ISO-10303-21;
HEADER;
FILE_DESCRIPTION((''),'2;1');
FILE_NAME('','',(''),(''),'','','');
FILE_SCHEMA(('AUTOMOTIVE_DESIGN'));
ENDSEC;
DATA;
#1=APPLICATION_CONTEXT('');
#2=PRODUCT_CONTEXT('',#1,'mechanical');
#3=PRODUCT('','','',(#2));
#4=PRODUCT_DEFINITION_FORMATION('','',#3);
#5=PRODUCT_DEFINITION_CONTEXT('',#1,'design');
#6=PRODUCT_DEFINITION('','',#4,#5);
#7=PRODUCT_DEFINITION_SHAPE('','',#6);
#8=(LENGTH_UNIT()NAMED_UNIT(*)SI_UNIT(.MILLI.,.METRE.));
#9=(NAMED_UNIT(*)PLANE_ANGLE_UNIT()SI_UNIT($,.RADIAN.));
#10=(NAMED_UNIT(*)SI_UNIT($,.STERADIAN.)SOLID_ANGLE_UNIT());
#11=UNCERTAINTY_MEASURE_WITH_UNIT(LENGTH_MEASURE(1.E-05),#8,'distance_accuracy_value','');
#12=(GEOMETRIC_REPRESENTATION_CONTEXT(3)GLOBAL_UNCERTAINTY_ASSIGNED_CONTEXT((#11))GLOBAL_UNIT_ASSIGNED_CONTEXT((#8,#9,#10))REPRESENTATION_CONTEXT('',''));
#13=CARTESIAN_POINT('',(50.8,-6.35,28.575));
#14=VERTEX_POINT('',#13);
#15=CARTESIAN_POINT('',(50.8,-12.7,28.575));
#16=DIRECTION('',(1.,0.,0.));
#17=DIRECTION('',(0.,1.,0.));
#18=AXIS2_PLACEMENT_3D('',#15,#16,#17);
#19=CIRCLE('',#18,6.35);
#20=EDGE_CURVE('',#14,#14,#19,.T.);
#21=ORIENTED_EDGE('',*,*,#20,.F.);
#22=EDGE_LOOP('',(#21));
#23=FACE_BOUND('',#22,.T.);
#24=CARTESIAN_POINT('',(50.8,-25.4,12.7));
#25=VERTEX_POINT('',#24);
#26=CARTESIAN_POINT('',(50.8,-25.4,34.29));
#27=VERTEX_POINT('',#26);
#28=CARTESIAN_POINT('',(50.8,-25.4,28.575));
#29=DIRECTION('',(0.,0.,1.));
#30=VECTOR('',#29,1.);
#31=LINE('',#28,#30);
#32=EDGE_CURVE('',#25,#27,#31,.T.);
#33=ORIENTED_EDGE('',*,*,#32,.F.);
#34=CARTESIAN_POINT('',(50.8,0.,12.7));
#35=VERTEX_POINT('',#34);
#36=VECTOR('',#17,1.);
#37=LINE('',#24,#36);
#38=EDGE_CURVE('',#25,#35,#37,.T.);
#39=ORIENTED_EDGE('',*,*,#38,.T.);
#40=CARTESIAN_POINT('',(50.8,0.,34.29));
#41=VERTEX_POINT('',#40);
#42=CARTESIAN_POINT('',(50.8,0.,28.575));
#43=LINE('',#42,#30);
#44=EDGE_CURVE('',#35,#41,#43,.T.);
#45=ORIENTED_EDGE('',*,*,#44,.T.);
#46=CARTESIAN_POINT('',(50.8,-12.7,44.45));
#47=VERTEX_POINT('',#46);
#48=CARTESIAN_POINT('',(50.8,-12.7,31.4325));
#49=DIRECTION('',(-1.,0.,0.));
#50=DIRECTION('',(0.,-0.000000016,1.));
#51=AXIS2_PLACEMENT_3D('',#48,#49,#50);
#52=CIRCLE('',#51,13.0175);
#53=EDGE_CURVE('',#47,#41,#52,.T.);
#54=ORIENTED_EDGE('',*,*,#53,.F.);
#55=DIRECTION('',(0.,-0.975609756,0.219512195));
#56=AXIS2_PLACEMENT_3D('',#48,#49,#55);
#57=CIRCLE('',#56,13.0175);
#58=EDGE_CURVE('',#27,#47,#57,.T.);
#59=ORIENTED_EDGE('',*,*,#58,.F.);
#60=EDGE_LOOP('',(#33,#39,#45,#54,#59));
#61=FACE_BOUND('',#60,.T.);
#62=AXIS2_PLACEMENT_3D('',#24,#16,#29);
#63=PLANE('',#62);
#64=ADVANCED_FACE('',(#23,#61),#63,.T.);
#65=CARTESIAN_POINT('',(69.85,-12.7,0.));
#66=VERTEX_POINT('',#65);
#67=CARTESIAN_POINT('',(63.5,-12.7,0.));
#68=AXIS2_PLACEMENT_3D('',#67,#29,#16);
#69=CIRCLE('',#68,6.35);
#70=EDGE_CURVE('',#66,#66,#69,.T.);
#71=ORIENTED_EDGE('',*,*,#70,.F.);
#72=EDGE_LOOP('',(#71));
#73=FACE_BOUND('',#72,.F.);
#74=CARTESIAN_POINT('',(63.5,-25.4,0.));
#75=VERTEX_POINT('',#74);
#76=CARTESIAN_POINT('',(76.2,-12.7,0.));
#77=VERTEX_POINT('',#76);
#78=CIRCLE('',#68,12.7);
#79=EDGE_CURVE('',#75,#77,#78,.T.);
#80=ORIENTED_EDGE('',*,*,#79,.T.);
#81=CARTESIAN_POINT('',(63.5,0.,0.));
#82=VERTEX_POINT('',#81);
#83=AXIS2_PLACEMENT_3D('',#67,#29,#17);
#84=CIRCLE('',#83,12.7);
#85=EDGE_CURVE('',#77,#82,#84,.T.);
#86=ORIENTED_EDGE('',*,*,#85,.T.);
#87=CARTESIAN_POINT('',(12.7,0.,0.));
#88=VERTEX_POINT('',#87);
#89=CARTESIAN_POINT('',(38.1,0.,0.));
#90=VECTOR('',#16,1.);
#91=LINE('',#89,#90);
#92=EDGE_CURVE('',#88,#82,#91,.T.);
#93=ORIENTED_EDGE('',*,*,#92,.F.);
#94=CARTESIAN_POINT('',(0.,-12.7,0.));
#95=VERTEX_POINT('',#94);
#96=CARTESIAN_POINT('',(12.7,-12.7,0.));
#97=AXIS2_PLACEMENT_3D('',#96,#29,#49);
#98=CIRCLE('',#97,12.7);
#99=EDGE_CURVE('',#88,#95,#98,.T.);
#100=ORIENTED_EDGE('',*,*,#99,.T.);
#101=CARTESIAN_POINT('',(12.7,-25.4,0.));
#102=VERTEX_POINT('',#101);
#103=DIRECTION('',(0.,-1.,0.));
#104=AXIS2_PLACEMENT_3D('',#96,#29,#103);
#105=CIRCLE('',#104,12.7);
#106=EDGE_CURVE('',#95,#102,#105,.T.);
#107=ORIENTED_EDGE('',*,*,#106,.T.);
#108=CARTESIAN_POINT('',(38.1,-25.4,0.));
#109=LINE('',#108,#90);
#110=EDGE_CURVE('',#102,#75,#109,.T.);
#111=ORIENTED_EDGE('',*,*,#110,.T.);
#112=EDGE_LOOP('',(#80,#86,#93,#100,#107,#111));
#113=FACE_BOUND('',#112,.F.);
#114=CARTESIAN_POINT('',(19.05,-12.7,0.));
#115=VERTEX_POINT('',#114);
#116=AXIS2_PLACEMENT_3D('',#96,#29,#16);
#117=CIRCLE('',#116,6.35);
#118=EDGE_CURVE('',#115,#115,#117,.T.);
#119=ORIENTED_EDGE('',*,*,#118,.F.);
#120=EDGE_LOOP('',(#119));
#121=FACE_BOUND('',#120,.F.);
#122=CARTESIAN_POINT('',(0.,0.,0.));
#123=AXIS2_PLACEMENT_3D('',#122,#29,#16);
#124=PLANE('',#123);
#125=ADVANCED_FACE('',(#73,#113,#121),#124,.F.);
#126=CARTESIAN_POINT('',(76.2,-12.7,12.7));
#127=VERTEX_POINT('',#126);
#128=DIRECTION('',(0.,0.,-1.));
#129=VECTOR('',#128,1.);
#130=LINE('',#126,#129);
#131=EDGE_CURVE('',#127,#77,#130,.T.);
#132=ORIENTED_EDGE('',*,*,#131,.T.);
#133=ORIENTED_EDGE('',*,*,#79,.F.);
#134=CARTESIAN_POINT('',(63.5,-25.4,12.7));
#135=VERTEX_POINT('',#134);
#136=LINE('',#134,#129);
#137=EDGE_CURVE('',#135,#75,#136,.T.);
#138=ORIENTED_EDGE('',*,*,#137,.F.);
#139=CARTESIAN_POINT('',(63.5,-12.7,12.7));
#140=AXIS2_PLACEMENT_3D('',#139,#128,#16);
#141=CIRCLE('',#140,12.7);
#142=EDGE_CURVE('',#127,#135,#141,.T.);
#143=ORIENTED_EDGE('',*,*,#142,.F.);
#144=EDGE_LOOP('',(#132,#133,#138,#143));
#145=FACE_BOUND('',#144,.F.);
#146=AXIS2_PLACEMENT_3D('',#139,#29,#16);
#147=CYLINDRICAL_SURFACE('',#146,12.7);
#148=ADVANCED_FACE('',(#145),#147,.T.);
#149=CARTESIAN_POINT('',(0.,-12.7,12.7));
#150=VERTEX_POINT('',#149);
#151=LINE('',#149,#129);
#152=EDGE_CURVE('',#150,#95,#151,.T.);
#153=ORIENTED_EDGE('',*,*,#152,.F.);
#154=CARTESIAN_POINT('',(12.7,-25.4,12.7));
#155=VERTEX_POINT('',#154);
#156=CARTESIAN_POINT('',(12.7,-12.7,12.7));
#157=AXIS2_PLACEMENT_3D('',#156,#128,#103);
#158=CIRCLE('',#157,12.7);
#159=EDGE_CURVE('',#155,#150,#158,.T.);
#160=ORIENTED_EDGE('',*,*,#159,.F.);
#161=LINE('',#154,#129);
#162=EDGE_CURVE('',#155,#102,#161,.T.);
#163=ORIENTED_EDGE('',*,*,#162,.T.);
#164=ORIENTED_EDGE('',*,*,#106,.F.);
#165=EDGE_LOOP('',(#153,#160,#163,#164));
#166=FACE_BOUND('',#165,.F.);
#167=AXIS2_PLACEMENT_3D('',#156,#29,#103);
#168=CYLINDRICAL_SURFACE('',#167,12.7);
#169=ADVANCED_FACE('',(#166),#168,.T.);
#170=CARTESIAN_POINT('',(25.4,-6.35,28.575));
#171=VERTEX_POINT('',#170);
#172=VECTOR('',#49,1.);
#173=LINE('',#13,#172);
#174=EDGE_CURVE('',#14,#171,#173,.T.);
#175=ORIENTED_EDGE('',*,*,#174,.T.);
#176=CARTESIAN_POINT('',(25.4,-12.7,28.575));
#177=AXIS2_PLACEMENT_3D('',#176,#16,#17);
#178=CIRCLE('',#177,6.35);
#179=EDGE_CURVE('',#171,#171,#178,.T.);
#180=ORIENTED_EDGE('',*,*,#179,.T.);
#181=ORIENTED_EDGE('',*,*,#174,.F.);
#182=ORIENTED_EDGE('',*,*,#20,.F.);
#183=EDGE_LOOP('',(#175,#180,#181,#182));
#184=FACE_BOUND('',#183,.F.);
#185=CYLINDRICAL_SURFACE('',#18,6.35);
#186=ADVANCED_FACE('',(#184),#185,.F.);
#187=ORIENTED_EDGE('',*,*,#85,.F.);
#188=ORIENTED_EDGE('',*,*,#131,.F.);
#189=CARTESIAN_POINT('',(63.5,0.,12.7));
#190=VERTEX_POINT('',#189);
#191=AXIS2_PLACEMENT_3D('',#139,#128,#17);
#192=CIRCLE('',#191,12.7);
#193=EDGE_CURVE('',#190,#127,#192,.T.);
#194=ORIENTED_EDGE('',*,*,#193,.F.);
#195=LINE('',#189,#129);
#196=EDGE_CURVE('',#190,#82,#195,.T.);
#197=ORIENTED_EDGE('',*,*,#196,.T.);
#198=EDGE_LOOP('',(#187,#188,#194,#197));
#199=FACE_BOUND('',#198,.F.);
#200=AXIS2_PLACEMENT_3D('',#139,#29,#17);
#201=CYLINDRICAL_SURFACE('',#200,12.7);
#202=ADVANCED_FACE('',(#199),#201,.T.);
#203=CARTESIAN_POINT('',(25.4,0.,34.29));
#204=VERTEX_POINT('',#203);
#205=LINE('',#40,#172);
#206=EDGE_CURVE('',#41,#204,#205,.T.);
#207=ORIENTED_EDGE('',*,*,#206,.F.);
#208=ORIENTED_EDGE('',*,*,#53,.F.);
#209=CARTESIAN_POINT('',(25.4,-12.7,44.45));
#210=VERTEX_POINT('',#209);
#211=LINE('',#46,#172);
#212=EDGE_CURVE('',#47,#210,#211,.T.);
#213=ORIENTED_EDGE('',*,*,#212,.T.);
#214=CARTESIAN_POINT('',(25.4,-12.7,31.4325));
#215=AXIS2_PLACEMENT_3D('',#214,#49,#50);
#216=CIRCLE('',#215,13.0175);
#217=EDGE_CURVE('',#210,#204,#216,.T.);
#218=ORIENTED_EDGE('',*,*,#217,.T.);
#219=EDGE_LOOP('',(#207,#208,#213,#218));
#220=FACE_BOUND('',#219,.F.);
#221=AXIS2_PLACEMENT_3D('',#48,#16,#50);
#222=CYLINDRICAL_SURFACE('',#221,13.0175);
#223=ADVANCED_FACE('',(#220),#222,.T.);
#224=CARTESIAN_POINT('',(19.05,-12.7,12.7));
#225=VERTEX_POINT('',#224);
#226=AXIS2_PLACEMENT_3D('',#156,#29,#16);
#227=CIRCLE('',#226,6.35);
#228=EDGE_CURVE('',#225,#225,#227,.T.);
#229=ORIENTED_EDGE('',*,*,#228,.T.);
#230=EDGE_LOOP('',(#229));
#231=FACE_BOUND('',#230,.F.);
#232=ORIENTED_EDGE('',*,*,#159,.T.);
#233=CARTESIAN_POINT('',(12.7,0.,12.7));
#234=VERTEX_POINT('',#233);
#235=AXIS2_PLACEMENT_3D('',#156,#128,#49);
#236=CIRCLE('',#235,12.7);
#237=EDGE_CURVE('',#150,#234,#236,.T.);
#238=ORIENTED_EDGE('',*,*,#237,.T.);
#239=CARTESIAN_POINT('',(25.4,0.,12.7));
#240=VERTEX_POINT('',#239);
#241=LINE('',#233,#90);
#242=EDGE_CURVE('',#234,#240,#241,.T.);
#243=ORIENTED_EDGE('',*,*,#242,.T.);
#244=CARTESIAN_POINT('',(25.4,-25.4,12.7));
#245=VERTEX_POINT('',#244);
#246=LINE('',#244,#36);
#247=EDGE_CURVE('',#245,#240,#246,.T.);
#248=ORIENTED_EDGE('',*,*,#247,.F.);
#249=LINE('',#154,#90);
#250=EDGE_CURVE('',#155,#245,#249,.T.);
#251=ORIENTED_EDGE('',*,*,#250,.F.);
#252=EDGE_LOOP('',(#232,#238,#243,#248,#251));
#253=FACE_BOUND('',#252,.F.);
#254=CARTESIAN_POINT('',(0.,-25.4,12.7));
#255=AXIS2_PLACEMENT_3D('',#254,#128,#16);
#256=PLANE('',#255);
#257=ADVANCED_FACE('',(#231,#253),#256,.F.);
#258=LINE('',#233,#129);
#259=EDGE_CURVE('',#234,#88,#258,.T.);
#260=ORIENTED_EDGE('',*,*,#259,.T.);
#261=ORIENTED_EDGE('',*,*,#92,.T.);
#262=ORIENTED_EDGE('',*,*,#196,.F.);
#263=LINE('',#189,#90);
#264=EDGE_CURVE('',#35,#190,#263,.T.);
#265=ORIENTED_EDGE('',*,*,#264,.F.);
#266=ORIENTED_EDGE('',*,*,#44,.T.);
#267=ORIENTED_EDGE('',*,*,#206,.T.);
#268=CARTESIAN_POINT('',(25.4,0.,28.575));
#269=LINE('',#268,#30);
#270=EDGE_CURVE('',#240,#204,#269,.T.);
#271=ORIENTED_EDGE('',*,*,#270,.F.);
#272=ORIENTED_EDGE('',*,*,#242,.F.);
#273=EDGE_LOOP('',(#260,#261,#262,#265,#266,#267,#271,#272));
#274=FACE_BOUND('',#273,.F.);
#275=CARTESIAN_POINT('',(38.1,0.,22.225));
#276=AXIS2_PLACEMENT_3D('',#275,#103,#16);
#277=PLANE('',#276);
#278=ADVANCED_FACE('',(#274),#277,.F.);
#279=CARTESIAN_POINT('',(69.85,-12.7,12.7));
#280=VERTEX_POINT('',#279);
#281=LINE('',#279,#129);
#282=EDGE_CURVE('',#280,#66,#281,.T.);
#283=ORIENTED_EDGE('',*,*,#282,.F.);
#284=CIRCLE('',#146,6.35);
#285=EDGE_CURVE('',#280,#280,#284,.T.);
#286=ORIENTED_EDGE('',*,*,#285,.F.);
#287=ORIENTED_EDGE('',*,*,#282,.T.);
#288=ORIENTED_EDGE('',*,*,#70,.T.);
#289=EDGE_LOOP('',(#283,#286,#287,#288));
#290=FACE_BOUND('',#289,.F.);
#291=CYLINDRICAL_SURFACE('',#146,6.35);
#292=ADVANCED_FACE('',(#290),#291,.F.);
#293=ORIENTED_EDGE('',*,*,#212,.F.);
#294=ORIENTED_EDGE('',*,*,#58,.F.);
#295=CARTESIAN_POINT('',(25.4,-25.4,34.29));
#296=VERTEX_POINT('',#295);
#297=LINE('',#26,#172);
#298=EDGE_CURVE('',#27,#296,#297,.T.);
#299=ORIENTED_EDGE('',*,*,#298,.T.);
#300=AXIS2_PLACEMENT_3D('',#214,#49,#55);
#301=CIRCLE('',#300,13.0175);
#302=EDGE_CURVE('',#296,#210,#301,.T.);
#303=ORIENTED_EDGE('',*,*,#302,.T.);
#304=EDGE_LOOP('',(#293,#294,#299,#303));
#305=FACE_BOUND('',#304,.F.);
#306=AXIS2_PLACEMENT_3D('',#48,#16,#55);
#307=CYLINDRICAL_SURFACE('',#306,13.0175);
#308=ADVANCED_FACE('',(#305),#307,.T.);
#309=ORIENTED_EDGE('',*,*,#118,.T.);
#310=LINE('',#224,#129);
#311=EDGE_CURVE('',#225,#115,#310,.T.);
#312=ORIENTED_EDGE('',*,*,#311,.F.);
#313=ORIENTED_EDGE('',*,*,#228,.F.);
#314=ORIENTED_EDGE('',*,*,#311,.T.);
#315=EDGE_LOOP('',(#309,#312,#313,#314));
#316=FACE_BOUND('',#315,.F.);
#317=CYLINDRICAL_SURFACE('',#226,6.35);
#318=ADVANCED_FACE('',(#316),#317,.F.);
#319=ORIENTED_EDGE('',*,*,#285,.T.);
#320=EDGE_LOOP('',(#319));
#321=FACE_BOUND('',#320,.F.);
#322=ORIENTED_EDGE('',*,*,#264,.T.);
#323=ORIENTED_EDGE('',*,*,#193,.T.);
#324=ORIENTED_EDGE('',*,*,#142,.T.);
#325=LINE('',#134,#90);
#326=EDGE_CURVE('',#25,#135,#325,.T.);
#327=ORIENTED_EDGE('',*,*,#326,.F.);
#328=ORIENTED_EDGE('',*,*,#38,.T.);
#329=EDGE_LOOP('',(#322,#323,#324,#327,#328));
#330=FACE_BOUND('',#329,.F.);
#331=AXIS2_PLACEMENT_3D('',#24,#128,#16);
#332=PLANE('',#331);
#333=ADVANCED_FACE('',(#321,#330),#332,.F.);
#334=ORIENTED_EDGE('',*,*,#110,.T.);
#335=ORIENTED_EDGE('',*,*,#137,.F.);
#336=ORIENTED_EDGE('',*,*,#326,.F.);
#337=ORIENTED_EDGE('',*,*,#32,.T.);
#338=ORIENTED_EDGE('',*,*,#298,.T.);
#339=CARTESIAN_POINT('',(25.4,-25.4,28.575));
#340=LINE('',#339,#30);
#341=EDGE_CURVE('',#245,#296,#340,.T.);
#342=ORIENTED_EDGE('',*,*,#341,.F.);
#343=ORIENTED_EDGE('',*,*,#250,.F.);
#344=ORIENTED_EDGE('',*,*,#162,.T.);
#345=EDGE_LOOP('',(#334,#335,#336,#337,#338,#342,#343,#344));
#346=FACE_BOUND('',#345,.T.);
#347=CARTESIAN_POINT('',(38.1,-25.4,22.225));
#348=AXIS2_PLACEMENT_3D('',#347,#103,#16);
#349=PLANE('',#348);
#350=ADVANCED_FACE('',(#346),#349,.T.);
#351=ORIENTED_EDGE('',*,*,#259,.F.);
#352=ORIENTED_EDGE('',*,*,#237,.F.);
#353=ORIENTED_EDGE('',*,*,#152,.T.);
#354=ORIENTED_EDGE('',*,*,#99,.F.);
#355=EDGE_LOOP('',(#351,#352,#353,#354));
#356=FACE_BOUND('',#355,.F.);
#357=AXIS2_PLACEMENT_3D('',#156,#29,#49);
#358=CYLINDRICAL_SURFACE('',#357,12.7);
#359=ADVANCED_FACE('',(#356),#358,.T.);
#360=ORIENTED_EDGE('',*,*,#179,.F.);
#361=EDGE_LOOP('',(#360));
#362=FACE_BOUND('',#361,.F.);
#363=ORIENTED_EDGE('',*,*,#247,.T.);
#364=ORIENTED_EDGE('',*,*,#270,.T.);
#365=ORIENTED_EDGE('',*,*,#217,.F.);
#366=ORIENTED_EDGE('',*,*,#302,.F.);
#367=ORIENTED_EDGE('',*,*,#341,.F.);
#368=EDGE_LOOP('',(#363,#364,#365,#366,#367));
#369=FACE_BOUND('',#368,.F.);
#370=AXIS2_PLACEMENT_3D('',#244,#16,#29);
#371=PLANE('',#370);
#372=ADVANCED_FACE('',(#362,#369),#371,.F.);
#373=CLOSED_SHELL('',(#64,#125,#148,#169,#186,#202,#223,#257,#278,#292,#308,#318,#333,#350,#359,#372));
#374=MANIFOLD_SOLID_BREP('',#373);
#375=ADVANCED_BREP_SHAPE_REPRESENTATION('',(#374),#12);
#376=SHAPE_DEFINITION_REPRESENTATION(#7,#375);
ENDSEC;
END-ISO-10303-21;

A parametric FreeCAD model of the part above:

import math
import FreeCAD as App
import Part
import Sketcher
from FreeCAD import Vector
Q = App.Units.Quantity


def add_polygon(sketch, points):
    """Adds a closed chain of lines whose ends are joined by coincident constraints."""
    first, n = sketch.GeometryCount, len(points)
    for a, b in zip(points, points[1:] + points[:1]):
        sketch.addGeometry(Part.LineSegment(App.Vector(*a, 0), App.Vector(*b, 0)), False)
    for i in range(n):
        sketch.addConstraint(Sketcher.Constraint("Coincident", first + i, 2, first + (i + 1) % n, 1))

doc = App.newDocument("Part")
body = doc.addObject("PartDesign::Body", "Body")

sketch1 = doc.addObject("Sketcher::SketchObject", "Sketch")
body.addObject(sketch1)
sketch1.AttachmentSupport = (doc.XZ_Plane, [""])
sketch1.MapMode = "FlatFace"
add_polygon(sketch1, [(0, 44), (0, 0), (76, 0), (76, 44)])
sketch1.addConstraint([
    Sketcher.Constraint("Vertical", 0),
    Sketcher.Constraint("Horizontal", 1),
    Sketcher.Constraint("Vertical", 2),
    Sketcher.Constraint("Horizontal", 3),
    Sketcher.Constraint("Coincident", 0, 2, -1, 1),
    Sketcher.Constraint("DistanceX", 1, 1, 1, 2, Q("3 in")),
    Sketcher.Constraint("DistanceY", 0, 2, 0, 1, Q("1.75 in")),
])
pad1 = doc.addObject("PartDesign::Pad", "Pad")
body.addObject(pad1)
pad1.Profile = sketch1
pad1.Length = Q("1 in")

sketch2 = doc.addObject("Sketcher::SketchObject", "Sketch001")
body.addObject(sketch2)
sketch2.AttachmentSupport = (doc.XZ_Plane, [""])
sketch2.MapMode = "FlatFace"
sketch2.AttachmentOffset = App.Placement(Vector(0, 0, 1 * 25.4), App.Rotation())
add_polygon(sketch2, [(0, 44), (0, 13), (25, 13), (25, 44)])
add_polygon(sketch2, [(51, 44), (51, 13), (76, 13), (76, 44)])
sketch2.addConstraint([
    Sketcher.Constraint("Vertical", 0),
    Sketcher.Constraint("Horizontal", 1),
    Sketcher.Constraint("Vertical", 2),
    Sketcher.Constraint("Horizontal", 3),
    Sketcher.Constraint("Vertical", 4),
    Sketcher.Constraint("Horizontal", 5),
    Sketcher.Constraint("Vertical", 6),
    Sketcher.Constraint("Horizontal", 7),
    Sketcher.Constraint("PointOnObject", 0, 2, -2),
    Sketcher.Constraint("Horizontal", 1, 2, 4, 2),
    Sketcher.Constraint("Horizontal", 3, 2, 6, 2),
    Sketcher.Constraint("Equal", 3, 5),
    Sketcher.Constraint("DistanceX", 1, 1, 1, 2, Q("1 in")),
    Sketcher.Constraint("DistanceX", -1, 1, 4, 2, Q("2 in")),
    Sketcher.Constraint("DistanceY", 0, 2, 0, 1, Q("1.25 in")),
    Sketcher.Constraint("DistanceY", -1, 1, 0, 2, Q("0.5 in")),
])
pocket1 = doc.addObject("PartDesign::Pocket", "Pocket")
body.addObject(pocket1)
pocket1.Profile = sketch2
pocket1.Length = Q("1 in")

sketch3 = doc.addObject("Sketcher::SketchObject", "Sketch002")
body.addObject(sketch3)
sketch3.AttachmentSupport = (doc.YZ_Plane, [""])
sketch3.MapMode = "FlatFace"
sketch3.AttachmentOffset = App.Placement(Vector(0, 0, 2 * 25.4), App.Rotation())
sketch3.addGeometry([
    Part.Circle(Vector(-13, 29, 0), Vector(0, 0, 1), 6),
    Part.ArcOfCircle(Part.Circle(Vector(-13, 31, 0), Vector(0, 0, 1), 13), math.radians(13), math.radians(90)),
    Part.LineSegment(Vector(0, 34, 0), Vector(0, 44, 0)),
    Part.LineSegment(Vector(0, 44, 0), Vector(-13, 44, 0)),
    Part.ArcOfCircle(Part.Circle(Vector(-13, 31, 0), Vector(0, 0, 1), 13), math.radians(90), math.radians(167)),
    Part.LineSegment(Vector(-13, 44, 0), Vector(-25, 44, 0)),
    Part.LineSegment(Vector(-25, 44, 0), Vector(-25, 34, 0)),
], False)
sketch3.addConstraint([
    Sketcher.Constraint("Coincident", 1, 1, 2, 1),
    Sketcher.Constraint("Coincident", 2, 2, 3, 1),
    Sketcher.Constraint("Tangent", 3, 2, 1, 2),
    Sketcher.Constraint("Tangent", 4, 1, 5, 1),
    Sketcher.Constraint("Coincident", 5, 2, 6, 1),
    Sketcher.Constraint("Coincident", 6, 2, 4, 2),
    Sketcher.Constraint("Vertical", 2),
    Sketcher.Constraint("Horizontal", 3),
    Sketcher.Constraint("Horizontal", 5),
    Sketcher.Constraint("Vertical", 6),
    Sketcher.Constraint("Coincident", 4, 3, 1, 3),
    Sketcher.Constraint("Equal", 1, 4),
    Sketcher.Constraint("PointOnObject", 1, 1, -2),
    Sketcher.Constraint("Horizontal", 1, 1, 6, 2),
    Sketcher.Constraint("Vertical", 0, 3, 1, 3),
    Sketcher.Constraint("Diameter", 0, Q("0.5 in")),
    Sketcher.Constraint("DistanceX", 3, 2, 3, 1, Q("0.5 in")),
    Sketcher.Constraint("DistanceY", 2, 1, 2, 2, Q("0.4 in")),
    Sketcher.Constraint("DistanceY", -1, 1, 1, 1, Q("1.35 in")),
    Sketcher.Constraint("DistanceY", -1, 1, 0, 3, Q("1.125 in")),
])
pocket2 = doc.addObject("PartDesign::Pocket", "Pocket001")
body.addObject(pocket2)
pocket2.Profile = sketch3
pocket2.Length = Q("1 in")

sketch4 = doc.addObject("Sketcher::SketchObject", "Sketch003")
body.addObject(sketch4)
sketch4.AttachmentSupport = (doc.XY_Plane, [""])
sketch4.MapMode = "FlatFace"
sketch4.AttachmentOffset = App.Placement(Vector(0, 0, 0.5 * 25.4), App.Rotation())
sketch4.addGeometry([
    Part.Circle(Vector(64, -13, 0), Vector(0, 0, 1), 6),
    Part.ArcOfCircle(Part.Circle(Vector(64, -13, 0), Vector(0, 0, 1), 13), math.radians(0), math.radians(90)),
    Part.LineSegment(Vector(76, -13, 0), Vector(76, 0, 0)),
    Part.LineSegment(Vector(76, 0, 0), Vector(64, 0, 0)),
    Part.ArcOfCircle(Part.Circle(Vector(64, -13, 0), Vector(0, 0, 1), 13), math.radians(-90), math.radians(0)),
    Part.LineSegment(Vector(64, -25, 0), Vector(76, -25, 0)),
    Part.LineSegment(Vector(76, -25, 0), Vector(76, -13, 0)),
], False)
sketch4.addConstraint([
    Sketcher.Constraint("Tangent", 1, 1, 2, 1),
    Sketcher.Constraint("Coincident", 2, 2, 3, 1),
    Sketcher.Constraint("Tangent", 3, 2, 1, 2),
    Sketcher.Constraint("Tangent", 4, 1, 5, 1),
    Sketcher.Constraint("Coincident", 5, 2, 6, 1),
    Sketcher.Constraint("Tangent", 6, 2, 4, 2),
    Sketcher.Constraint("Vertical", 2),
    Sketcher.Constraint("Horizontal", 3),
    Sketcher.Constraint("Horizontal", 5),
    Sketcher.Constraint("Vertical", 6),
    Sketcher.Constraint("Coincident", 1, 3, 0, 3),
    Sketcher.Constraint("Coincident", 4, 3, 0, 3),
    Sketcher.Constraint("Equal", 1, 4),
    Sketcher.Constraint("PointOnObject", 2, 2, -1),
    Sketcher.Constraint("Diameter", 0, Q("0.5 in")),
    Sketcher.Constraint("Radius", 1, Q("0.5 in")),
    Sketcher.Constraint("DistanceX", -1, 1, 1, 1, Q("3 in")),
])
pocket3 = doc.addObject("PartDesign::Pocket", "Pocket002")
body.addObject(pocket3)
pocket3.Profile = sketch4
pocket3.Length = Q("1 in")

sketch5 = doc.addObject("Sketcher::SketchObject", "Sketch004")
body.addObject(sketch5)
sketch5.AttachmentSupport = (doc.XY_Plane, [""])
sketch5.MapMode = "FlatFace"
sketch5.AttachmentOffset = App.Placement(Vector(0, 0, 0.5 * 25.4), App.Rotation())
sketch5.addGeometry([
    Part.ArcOfCircle(Part.Circle(Vector(13, -13, 0), Vector(0, 0, 1), 13), math.radians(90), math.radians(180)),
    Part.LineSegment(Vector(13, 0, 0), Vector(0, 0, 0)),
    Part.LineSegment(Vector(0, 0, 0), Vector(0, -13, 0)),
    Part.Circle(Vector(13, -13, 0), Vector(0, 0, 1), 6),
    Part.ArcOfCircle(Part.Circle(Vector(13, -13, 0), Vector(0, 0, 1), 13), math.radians(180), math.radians(270)),
    Part.LineSegment(Vector(0, -13, 0), Vector(0, -25, 0)),
    Part.LineSegment(Vector(0, -25, 0), Vector(13, -25, 0)),
], False)
sketch5.addConstraint([
    Sketcher.Constraint("Tangent", 0, 1, 1, 1),
    Sketcher.Constraint("Coincident", 1, 2, 2, 1),
    Sketcher.Constraint("Tangent", 2, 2, 0, 2),
    Sketcher.Constraint("Tangent", 4, 1, 5, 1),
    Sketcher.Constraint("Coincident", 5, 2, 6, 1),
    Sketcher.Constraint("Tangent", 6, 2, 4, 2),
    Sketcher.Constraint("Horizontal", 1),
    Sketcher.Constraint("Vertical", 2),
    Sketcher.Constraint("Vertical", 5),
    Sketcher.Constraint("Horizontal", 6),
    Sketcher.Constraint("Coincident", 1, 2, -1, 1),
    Sketcher.Constraint("Coincident", 3, 3, 0, 3),
    Sketcher.Constraint("Coincident", 4, 3, 0, 3),
    Sketcher.Constraint("Equal", 0, 4),
    Sketcher.Constraint("Diameter", 3, Q("0.5 in")),
    Sketcher.Constraint("Radius", 0, Q("0.5 in")),
])
pocket4 = doc.addObject("PartDesign::Pocket", "Pocket003")
body.addObject(pocket4)
pocket4.Profile = sketch5
pocket4.Length = Q("1 in")

doc.recompute()
